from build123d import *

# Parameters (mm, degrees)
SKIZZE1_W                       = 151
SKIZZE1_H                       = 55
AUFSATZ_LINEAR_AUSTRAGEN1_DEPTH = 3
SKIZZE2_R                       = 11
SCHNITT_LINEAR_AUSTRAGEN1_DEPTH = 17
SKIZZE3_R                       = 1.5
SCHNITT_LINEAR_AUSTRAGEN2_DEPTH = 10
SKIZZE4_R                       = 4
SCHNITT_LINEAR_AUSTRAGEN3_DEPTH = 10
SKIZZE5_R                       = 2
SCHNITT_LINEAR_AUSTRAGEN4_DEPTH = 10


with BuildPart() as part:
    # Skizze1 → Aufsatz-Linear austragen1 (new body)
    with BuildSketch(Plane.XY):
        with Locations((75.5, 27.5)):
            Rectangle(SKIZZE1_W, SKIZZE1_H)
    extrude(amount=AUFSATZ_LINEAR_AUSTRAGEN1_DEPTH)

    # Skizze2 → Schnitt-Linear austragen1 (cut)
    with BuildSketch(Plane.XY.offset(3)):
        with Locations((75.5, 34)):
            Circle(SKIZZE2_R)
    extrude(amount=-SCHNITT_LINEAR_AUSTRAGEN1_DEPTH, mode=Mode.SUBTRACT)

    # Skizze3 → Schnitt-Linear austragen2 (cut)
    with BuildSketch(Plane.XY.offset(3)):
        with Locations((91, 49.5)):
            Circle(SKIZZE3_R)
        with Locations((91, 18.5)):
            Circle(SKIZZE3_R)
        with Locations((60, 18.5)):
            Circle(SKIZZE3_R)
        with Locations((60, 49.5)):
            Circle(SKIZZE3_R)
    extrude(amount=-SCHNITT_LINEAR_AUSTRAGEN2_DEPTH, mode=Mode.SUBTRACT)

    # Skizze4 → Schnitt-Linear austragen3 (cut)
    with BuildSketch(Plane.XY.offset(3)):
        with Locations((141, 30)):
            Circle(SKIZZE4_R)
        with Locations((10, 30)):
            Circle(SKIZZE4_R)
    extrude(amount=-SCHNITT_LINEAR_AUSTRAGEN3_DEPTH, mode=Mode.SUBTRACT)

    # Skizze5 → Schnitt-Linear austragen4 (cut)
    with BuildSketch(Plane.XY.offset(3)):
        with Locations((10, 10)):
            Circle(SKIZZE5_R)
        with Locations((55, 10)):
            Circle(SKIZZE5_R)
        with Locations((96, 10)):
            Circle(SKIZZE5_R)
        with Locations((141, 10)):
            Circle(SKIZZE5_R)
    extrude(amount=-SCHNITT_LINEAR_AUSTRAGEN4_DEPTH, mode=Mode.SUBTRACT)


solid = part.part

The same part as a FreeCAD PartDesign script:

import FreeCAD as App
import Part
import Sketcher
Q = App.Units.Quantity


def add_polygon(sketch, points):
    """Adds a closed chain of lines whose ends are joined by coincident constraints."""
    first, n = sketch.GeometryCount, len(points)
    for a, b in zip(points, points[1:] + points[:1]):
        sketch.addGeometry(Part.LineSegment(App.Vector(*a, 0), App.Vector(*b, 0)), False)
    for i in range(n):
        sketch.addConstraint(Sketcher.Constraint("Coincident", first + i, 2, first + (i + 1) % n, 1))

doc = App.newDocument("Part")
body = doc.addObject("PartDesign::Body", "Body")

# Sketch on XY plane
sketch1 = body.newObject("Sketcher::SketchObject", "Sketch")
sketch1.AttachmentSupport = (doc.getObject("XY_Plane"), [""])
sketch1.MapMode = "FlatFace"
add_polygon(sketch1, [(0, 55), (0, 0), (151, 0), (151, 55)])  # lines 0-3
sketch1.addConstraint([
    Sketcher.Constraint("Vertical", 0),
    Sketcher.Constraint("Horizontal", 1),
    Sketcher.Constraint("Vertical", 2),
    Sketcher.Constraint("Horizontal", 3),
    Sketcher.Constraint("Coincident", 0, 2, -1, 1),
    Sketcher.Constraint("DistanceX", 1, 1, 1, 2, Q("151 mm")),
    Sketcher.Constraint("DistanceY", 0, 2, 0, 1, Q("55 mm")),
])
pad1 = body.newObject("PartDesign::Pad", "Pad")
pad1.Profile = sketch1
pad1.Length = 3

# Sketch on XY plane
sketch2 = body.newObject("Sketcher::SketchObject", "Sketch001")
sketch2.AttachmentSupport = (doc.getObject("XY_Plane"), [""])
sketch2.MapMode = "FlatFace"
sketch2.AttachmentOffset = App.Placement(App.Vector(0, 0, 3), App.Rotation())
sketch2.addGeometry(Part.Circle(App.Vector(76, 34, 0), App.Vector(0, 0, 1), 11), False)
sketch2.addConstraint([
    Sketcher.Constraint("Diameter", 0, Q("22 mm")),
    Sketcher.Constraint("DistanceY", -1, 1, 0, 3, Q("34 mm")),
    Sketcher.Constraint("DistanceX", -1, 1, 0, 3, Q("75.5 mm")),
])
pocket1 = body.newObject("PartDesign::Pocket", "Pocket")
pocket1.Profile = sketch2
pocket1.Length = 17

# Sketch on XY plane
sketch3 = body.newObject("Sketcher::SketchObject", "Sketch002")
sketch3.AttachmentSupport = (doc.getObject("XY_Plane"), [""])
sketch3.MapMode = "FlatFace"
sketch3.AttachmentOffset = App.Placement(App.Vector(0, 0, 3), App.Rotation())
sketch3.addGeometry([
    Part.Circle(App.Vector(91, 49.5, 0), App.Vector(0, 0, 1), 1.5),
    Part.Circle(App.Vector(91, 18.5, 0), App.Vector(0, 0, 1), 1.5),
    Part.Circle(App.Vector(60, 18.5, 0), App.Vector(0, 0, 1), 1.5),
    Part.Circle(App.Vector(60, 49.5, 0), App.Vector(0, 0, 1), 1.5),
], False)
sketch3.addConstraint([
    Sketcher.Constraint("Equal", 0, 1),
    Sketcher.Constraint("Equal", 1, 2),
    Sketcher.Constraint("Equal", 2, 3),
    Sketcher.Constraint("Horizontal", 1, 3, 2, 3),
    Sketcher.Constraint("Horizontal", 0, 3, 3, 3),
    Sketcher.Constraint("Vertical", 0, 3, 1, 3),
    Sketcher.Constraint("Vertical", 2, 3, 3, 3),
    Sketcher.Constraint("Diameter", 0, Q("3 mm")),
    Sketcher.Constraint("DistanceX", -1, 1, 0, 3, Q("91 mm")),
    Sketcher.Constraint("DistanceX", -1, 1, 2, 3, Q("60 mm")),
    Sketcher.Constraint("DistanceY", 1, 3, 0, 3, Q("31 mm")),
    Sketcher.Constraint("DistanceY", -1, 1, 0, 3, Q("49.5 mm")),
])
pocket2 = body.newObject("PartDesign::Pocket", "Pocket001")
pocket2.Profile = sketch3
pocket2.Length = 10

# Sketch on XY plane
sketch4 = body.newObject("Sketcher::SketchObject", "Sketch003")
sketch4.AttachmentSupport = (doc.getObject("XY_Plane"), [""])
sketch4.MapMode = "FlatFace"
sketch4.AttachmentOffset = App.Placement(App.Vector(0, 0, 3), App.Rotation())
sketch4.addGeometry([
    Part.Circle(App.Vector(141, 30, 0), App.Vector(0, 0, 1), 4),
    Part.Circle(App.Vector(10, 30, 0), App.Vector(0, 0, 1), 4),
], False)
sketch4.addConstraint([
    Sketcher.Constraint("Equal", 0, 1),
    Sketcher.Constraint("Horizontal", 0, 3, 1, 3),
    Sketcher.Constraint("Diameter", 0, Q("8 mm")),
    Sketcher.Constraint("DistanceX", -1, 1, 0, 3, Q("141 mm")),
    Sketcher.Constraint("DistanceY", -1, 1, 0, 3, Q("30 mm")),
    Sketcher.Constraint("DistanceX", -1, 1, 1, 3, Q("10 mm")),
])
pocket3 = body.newObject("PartDesign::Pocket", "Pocket002")
pocket3.Profile = sketch4
pocket3.Length = 10

# Sketch on XY plane
sketch5 = body.newObject("Sketcher::SketchObject", "Sketch004")
sketch5.AttachmentSupport = (doc.getObject("XY_Plane"), [""])
sketch5.MapMode = "FlatFace"
sketch5.AttachmentOffset = App.Placement(App.Vector(0, 0, 3), App.Rotation())
sketch5.addGeometry([
    Part.Circle(App.Vector(10, 10, 0), App.Vector(0, 0, 1), 2),
    Part.Circle(App.Vector(55, 10, 0), App.Vector(0, 0, 1), 2),
    Part.Circle(App.Vector(96, 10, 0), App.Vector(0, 0, 1), 2),
    Part.Circle(App.Vector(141, 10, 0), App.Vector(0, 0, 1), 2),
], False)
sketch5.addConstraint([
    Sketcher.Constraint("Equal", 0, 1),
    Sketcher.Constraint("Equal", 1, 2),
    Sketcher.Constraint("Equal", 2, 3),
    Sketcher.Constraint("Horizontal", 0, 3, 1, 3),
    Sketcher.Constraint("Horizontal", 1, 3, 2, 3),
    Sketcher.Constraint("Horizontal", 2, 3, 3, 3),
    Sketcher.Constraint("Diameter", 0, Q("4 mm")),
    Sketcher.Constraint("DistanceX", -1, 1, 0, 3, Q("10 mm")),
    Sketcher.Constraint("DistanceY", -1, 1, 0, 3, Q("10 mm")),
    Sketcher.Constraint("DistanceX", -1, 1, 1, 3, Q("55 mm")),
    Sketcher.Constraint("DistanceX", -1, 1, 2, 3, Q("96 mm")),
    Sketcher.Constraint("DistanceX", -1, 1, 3, 3, Q("141 mm")),
])
pocket4 = body.newObject("PartDesign::Pocket", "Pocket003")
pocket4.Profile = sketch5
pocket4.Length = 10

doc.recompute()
